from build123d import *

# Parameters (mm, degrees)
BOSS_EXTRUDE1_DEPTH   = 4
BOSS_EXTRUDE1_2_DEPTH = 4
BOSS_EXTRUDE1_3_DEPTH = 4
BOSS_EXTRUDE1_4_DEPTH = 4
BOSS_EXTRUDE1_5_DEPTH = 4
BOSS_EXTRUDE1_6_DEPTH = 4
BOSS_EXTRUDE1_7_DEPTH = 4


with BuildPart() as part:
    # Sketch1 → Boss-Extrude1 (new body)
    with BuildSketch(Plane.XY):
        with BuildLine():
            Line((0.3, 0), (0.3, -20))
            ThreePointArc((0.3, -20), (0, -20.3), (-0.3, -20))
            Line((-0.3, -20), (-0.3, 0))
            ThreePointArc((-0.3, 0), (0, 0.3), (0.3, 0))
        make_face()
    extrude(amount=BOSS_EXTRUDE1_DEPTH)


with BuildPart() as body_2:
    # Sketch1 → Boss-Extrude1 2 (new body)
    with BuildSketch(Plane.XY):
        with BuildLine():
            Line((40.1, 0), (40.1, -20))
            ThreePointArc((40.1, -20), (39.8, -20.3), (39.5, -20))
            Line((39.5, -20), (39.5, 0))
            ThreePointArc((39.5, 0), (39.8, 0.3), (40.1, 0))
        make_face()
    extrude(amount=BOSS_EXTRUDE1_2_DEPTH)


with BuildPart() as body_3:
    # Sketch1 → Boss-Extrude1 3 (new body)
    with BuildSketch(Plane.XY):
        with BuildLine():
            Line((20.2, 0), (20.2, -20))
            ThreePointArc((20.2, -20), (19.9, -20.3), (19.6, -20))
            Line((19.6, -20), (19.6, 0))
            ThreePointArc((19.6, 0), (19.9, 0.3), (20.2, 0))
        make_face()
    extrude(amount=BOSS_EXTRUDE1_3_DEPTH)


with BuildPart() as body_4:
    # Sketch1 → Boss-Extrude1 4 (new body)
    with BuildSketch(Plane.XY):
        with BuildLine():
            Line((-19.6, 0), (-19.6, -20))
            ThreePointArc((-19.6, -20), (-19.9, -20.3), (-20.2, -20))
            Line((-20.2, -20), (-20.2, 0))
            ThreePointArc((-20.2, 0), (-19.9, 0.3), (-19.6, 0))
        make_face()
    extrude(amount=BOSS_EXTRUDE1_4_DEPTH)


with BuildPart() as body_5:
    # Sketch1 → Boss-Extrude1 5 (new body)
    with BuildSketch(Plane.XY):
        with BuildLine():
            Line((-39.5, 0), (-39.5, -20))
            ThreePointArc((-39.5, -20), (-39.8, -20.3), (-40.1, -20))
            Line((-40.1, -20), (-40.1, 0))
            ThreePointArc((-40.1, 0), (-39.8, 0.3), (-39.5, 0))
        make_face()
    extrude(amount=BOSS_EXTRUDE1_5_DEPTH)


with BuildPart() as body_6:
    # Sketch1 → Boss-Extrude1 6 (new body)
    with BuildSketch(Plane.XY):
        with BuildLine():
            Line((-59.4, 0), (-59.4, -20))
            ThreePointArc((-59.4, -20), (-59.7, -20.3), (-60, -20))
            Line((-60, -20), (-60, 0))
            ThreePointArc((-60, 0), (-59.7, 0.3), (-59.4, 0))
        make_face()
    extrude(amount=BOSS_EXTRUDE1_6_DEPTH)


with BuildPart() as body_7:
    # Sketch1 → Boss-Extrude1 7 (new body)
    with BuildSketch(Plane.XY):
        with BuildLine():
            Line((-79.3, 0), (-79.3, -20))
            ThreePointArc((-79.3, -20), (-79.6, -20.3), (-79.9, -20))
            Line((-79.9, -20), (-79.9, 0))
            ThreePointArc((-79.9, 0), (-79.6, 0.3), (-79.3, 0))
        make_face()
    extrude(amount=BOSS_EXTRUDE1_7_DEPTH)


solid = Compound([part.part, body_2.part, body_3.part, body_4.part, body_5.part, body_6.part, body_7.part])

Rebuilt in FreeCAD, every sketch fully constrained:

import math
import FreeCAD as App
import Part
import Sketcher
from FreeCAD import Vector
Q = App.Units.Quantity

doc = App.newDocument("Part")
body = doc.addObject("PartDesign::Body", "Body")

sketch1 = doc.addObject("Sketcher::SketchObject", "Sketch")
body.addObject(sketch1)
sketch1.AttachmentSupport = (doc.XY_Plane, [""])
sketch1.MapMode = "FlatFace"
sketch1.addGeometry([
    Part.LineSegment(Vector(0.3, -20, 0), Vector(0.3, 0, 0)),
    Part.ArcOfCircle(Part.Circle(Vector(0, 0, 0), Vector(0, 0, 1), 0.3), math.radians(0), math.radians(180)),
    Part.LineSegment(Vector(-0.3, 0, 0), Vector(-0.3, -20, 0)),
    Part.ArcOfCircle(Part.Circle(Vector(0, -20, 0), Vector(0, 0, 1), 0.3), math.radians(180), math.radians(360)),
], False)
sketch1.addConstraint([
    Sketcher.Constraint("Tangent", 0, 2, 1, 1),
    Sketcher.Constraint("Tangent", 1, 2, 2, 1),
    Sketcher.Constraint("Tangent", 2, 2, 3, 1),
    Sketcher.Constraint("Tangent", 3, 2, 0, 1),
    Sketcher.Constraint("Vertical", 0),
    Sketcher.Constraint("Vertical", 2),
    Sketcher.Constraint("Coincident", 1, 3, -1, 1),
    Sketcher.Constraint("Radius", 1, Q("0.3 mm")),
    Sketcher.Constraint("DistanceY", 0, 1, 0, 2, Q("20 mm")),
])
pad1 = doc.addObject("PartDesign::Pad", "Pad")
body.addObject(pad1)
pad1.Profile = sketch1
pad1.Length = 4
body2 = doc.addObject("PartDesign::Body", "Body001")

sketch2 = doc.addObject("Sketcher::SketchObject", "Sketch001")
body2.addObject(sketch2)
sketch2.AttachmentSupport = (doc.getObject("XY_Plane001"), [""])
sketch2.MapMode = "FlatFace"
sketch2.addGeometry([
    Part.LineSegment(Vector(40.1, -20, 0), Vector(40.1, 0, 0)),
    Part.ArcOfCircle(Part.Circle(Vector(39.8, 0, 0), Vector(0, 0, 1), 0.3), math.radians(0), math.radians(180)),
    Part.LineSegment(Vector(39.5, 0, 0), Vector(39.5, -20, 0)),
    Part.ArcOfCircle(Part.Circle(Vector(39.8, -20, 0), Vector(0, 0, 1), 0.3), math.radians(180), math.radians(360)),
], False)
sketch2.addConstraint([
    Sketcher.Constraint("Tangent", 0, 2, 1, 1),
    Sketcher.Constraint("Tangent", 1, 2, 2, 1),
    Sketcher.Constraint("Tangent", 2, 2, 3, 1),
    Sketcher.Constraint("Tangent", 3, 2, 0, 1),
    Sketcher.Constraint("Vertical", 0),
    Sketcher.Constraint("Vertical", 2),
    Sketcher.Constraint("PointOnObject", 1, 3, -1),
    Sketcher.Constraint("Radius", 1, Q("0.3 mm")),
    Sketcher.Constraint("DistanceY", 0, 1, 0, 2, Q("20 mm")),
    Sketcher.Constraint("DistanceX", -1, 1, 1, 3, Q("39.8 mm")),
])
pad2 = doc.addObject("PartDesign::Pad", "Pad001")
body2.addObject(pad2)
pad2.Profile = sketch2
pad2.Length = 4
body3 = doc.addObject("PartDesign::Body", "Body002")

sketch3 = doc.addObject("Sketcher::SketchObject", "Sketch002")
body3.addObject(sketch3)
sketch3.AttachmentSupport = (doc.getObject("XY_Plane002"), [""])
sketch3.MapMode = "FlatFace"
sketch3.addGeometry([
    Part.LineSegment(Vector(20.2, -20, 0), Vector(20.2, 0, 0)),
    Part.ArcOfCircle(Part.Circle(Vector(19.9, 0, 0), Vector(0, 0, 1), 0.3), math.radians(0), math.radians(180)),
    Part.LineSegment(Vector(19.6, 0, 0), Vector(19.6, -20, 0)),
    Part.ArcOfCircle(Part.Circle(Vector(19.9, -20, 0), Vector(0, 0, 1), 0.3), math.radians(180), math.radians(360)),
], False)
sketch3.addConstraint([
    Sketcher.Constraint("Tangent", 0, 2, 1, 1),
    Sketcher.Constraint("Tangent", 1, 2, 2, 1),
    Sketcher.Constraint("Tangent", 2, 2, 3, 1),
    Sketcher.Constraint("Tangent", 3, 2, 0, 1),
    Sketcher.Constraint("Vertical", 0),
    Sketcher.Constraint("Vertical", 2),
    Sketcher.Constraint("PointOnObject", 1, 3, -1),
    Sketcher.Constraint("Radius", 1, Q("0.3 mm")),
    Sketcher.Constraint("DistanceY", 0, 1, 0, 2, Q("20 mm")),
    Sketcher.Constraint("DistanceX", -1, 1, 1, 3, Q("19.9 mm")),
])
pad3 = doc.addObject("PartDesign::Pad", "Pad002")
body3.addObject(pad3)
pad3.Profile = sketch3
pad3.Length = 4
body4 = doc.addObject("PartDesign::Body", "Body003")

sketch4 = doc.addObject("Sketcher::SketchObject", "Sketch003")
body4.addObject(sketch4)
sketch4.AttachmentSupport = (doc.getObject("XY_Plane003"), [""])
sketch4.MapMode = "FlatFace"
sketch4.addGeometry([
    Part.LineSegment(Vector(-19.6, -20, 0), Vector(-19.6, 0, 0)),
    Part.ArcOfCircle(Part.Circle(Vector(-19.9, 0, 0), Vector(0, 0, 1), 0.3), math.radians(0), math.radians(180)),
    Part.LineSegment(Vector(-20.2, 0, 0), Vector(-20.2, -20, 0)),
    Part.ArcOfCircle(Part.Circle(Vector(-19.9, -20, 0), Vector(0, 0, 1), 0.3), math.radians(180), math.radians(360)),
], False)
sketch4.addConstraint([
    Sketcher.Constraint("Tangent", 0, 2, 1, 1),
    Sketcher.Constraint("Tangent", 1, 2, 2, 1),
    Sketcher.Constraint("Tangent", 2, 2, 3, 1),
    Sketcher.Constraint("Tangent", 3, 2, 0, 1),
    Sketcher.Constraint("Vertical", 0),
    Sketcher.Constraint("Vertical", 2),
    Sketcher.Constraint("PointOnObject", 1, 3, -1),
    Sketcher.Constraint("Radius", 1, Q("0.3 mm")),
    Sketcher.Constraint("DistanceY", 0, 1, 0, 2, Q("20 mm")),
    Sketcher.Constraint("DistanceX", 1, 3, -1, 1, Q("19.9 mm")),
])
pad4 = doc.addObject("PartDesign::Pad", "Pad003")
body4.addObject(pad4)
pad4.Profile = sketch4
pad4.Length = 4
body5 = doc.addObject("PartDesign::Body", "Body004")

sketch5 = doc.addObject("Sketcher::SketchObject", "Sketch004")
body5.addObject(sketch5)
sketch5.AttachmentSupport = (doc.getObject("XY_Plane004"), [""])
sketch5.MapMode = "FlatFace"
sketch5.addGeometry([
    Part.LineSegment(Vector(-39.5, -20, 0), Vector(-39.5, 0, 0)),
    Part.ArcOfCircle(Part.Circle(Vector(-39.8, 0, 0), Vector(0, 0, 1), 0.3), math.radians(0), math.radians(180)),
    Part.LineSegment(Vector(-40.1, 0, 0), Vector(-40.1, -20, 0)),
    Part.ArcOfCircle(Part.Circle(Vector(-39.8, -20, 0), Vector(0, 0, 1), 0.3), math.radians(180), math.radians(360)),
], False)
sketch5.addConstraint([
    Sketcher.Constraint("Tangent", 0, 2, 1, 1),
    Sketcher.Constraint("Tangent", 1, 2, 2, 1),
    Sketcher.Constraint("Tangent", 2, 2, 3, 1),
    Sketcher.Constraint("Tangent", 3, 2, 0, 1),
    Sketcher.Constraint("Vertical", 0),
    Sketcher.Constraint("Vertical", 2),
    Sketcher.Constraint("PointOnObject", 1, 3, -1),
    Sketcher.Constraint("Radius", 1, Q("0.3 mm")),
    Sketcher.Constraint("DistanceY", 0, 1, 0, 2, Q("20 mm")),
    Sketcher.Constraint("DistanceX", 1, 3, -1, 1, Q("39.8 mm")),
])
pad5 = doc.addObject("PartDesign::Pad", "Pad004")
body5.addObject(pad5)
pad5.Profile = sketch5
pad5.Length = 4
body6 = doc.addObject("PartDesign::Body", "Body005")

sketch6 = doc.addObject("Sketcher::SketchObject", "Sketch005")
body6.addObject(sketch6)
sketch6.AttachmentSupport = (doc.getObject("XY_Plane005"), [""])
sketch6.MapMode = "FlatFace"
sketch6.addGeometry([
    Part.LineSegment(Vector(-59.4, -20, 0), Vector(-59.4, 0, 0)),
    Part.ArcOfCircle(Part.Circle(Vector(-59.7, 0, 0), Vector(0, 0, 1), 0.3), math.radians(0), math.radians(180)),
    Part.LineSegment(Vector(-60, 0, 0), Vector(-60, -20, 0)),
    Part.ArcOfCircle(Part.Circle(Vector(-59.7, -20, 0), Vector(0, 0, 1), 0.3), math.radians(180), math.radians(360)),
], False)
sketch6.addConstraint([
    Sketcher.Constraint("Tangent", 0, 2, 1, 1),
    Sketcher.Constraint("Tangent", 1, 2, 2, 1),
    Sketcher.Constraint("Tangent", 2, 2, 3, 1),
    Sketcher.Constraint("Tangent", 3, 2, 0, 1),
    Sketcher.Constraint("Vertical", 0),
    Sketcher.Constraint("Vertical", 2),
    Sketcher.Constraint("PointOnObject", 1, 3, -1),
    Sketcher.Constraint("Radius", 1, Q("0.3 mm")),
    Sketcher.Constraint("DistanceY", 0, 1, 0, 2, Q("20 mm")),
    Sketcher.Constraint("DistanceX", 1, 2, -1, 1, Q("60 mm")),
])
pad6 = doc.addObject("PartDesign::Pad", "Pad005")
body6.addObject(pad6)
pad6.Profile = sketch6
pad6.Length = 4
body7 = doc.addObject("PartDesign::Body", "Body006")

sketch7 = doc.addObject("Sketcher::SketchObject", "Sketch006")
body7.addObject(sketch7)
sketch7.AttachmentSupport = (doc.getObject("XY_Plane006"), [""])
sketch7.MapMode = "FlatFace"
sketch7.addGeometry([
    Part.LineSegment(Vector(-79.3, -20, 0), Vector(-79.3, 0, 0)),
    Part.ArcOfCircle(Part.Circle(Vector(-79.6, 0, 0), Vector(0, 0, 1), 0.3), math.radians(0), math.radians(180)),
    Part.LineSegment(Vector(-79.9, 0, 0), Vector(-79.9, -20, 0)),
    Part.ArcOfCircle(Part.Circle(Vector(-79.6, -20, 0), Vector(0, 0, 1), 0.3), math.radians(180), math.radians(360)),
], False)
sketch7.addConstraint([
    Sketcher.Constraint("Tangent", 0, 2, 1, 1),
    Sketcher.Constraint("Tangent", 1, 2, 2, 1),
    Sketcher.Constraint("Tangent", 2, 2, 3, 1),
    Sketcher.Constraint("Tangent", 3, 2, 0, 1),
    Sketcher.Constraint("Vertical", 0),
    Sketcher.Constraint("Vertical", 2),
    Sketcher.Constraint("PointOnObject", 1, 3, -1),
    Sketcher.Constraint("Radius", 1, Q("0.3 mm")),
    Sketcher.Constraint("DistanceY", 0, 1, 0, 2, Q("20 mm")),
    Sketcher.Constraint("DistanceX", 1, 3, -1, 1, Q("79.6 mm")),
])
pad7 = doc.addObject("PartDesign::Pad", "Pad006")
body7.addObject(pad7)
pad7.Profile = sketch7
pad7.Length = 4

doc.recompute()
